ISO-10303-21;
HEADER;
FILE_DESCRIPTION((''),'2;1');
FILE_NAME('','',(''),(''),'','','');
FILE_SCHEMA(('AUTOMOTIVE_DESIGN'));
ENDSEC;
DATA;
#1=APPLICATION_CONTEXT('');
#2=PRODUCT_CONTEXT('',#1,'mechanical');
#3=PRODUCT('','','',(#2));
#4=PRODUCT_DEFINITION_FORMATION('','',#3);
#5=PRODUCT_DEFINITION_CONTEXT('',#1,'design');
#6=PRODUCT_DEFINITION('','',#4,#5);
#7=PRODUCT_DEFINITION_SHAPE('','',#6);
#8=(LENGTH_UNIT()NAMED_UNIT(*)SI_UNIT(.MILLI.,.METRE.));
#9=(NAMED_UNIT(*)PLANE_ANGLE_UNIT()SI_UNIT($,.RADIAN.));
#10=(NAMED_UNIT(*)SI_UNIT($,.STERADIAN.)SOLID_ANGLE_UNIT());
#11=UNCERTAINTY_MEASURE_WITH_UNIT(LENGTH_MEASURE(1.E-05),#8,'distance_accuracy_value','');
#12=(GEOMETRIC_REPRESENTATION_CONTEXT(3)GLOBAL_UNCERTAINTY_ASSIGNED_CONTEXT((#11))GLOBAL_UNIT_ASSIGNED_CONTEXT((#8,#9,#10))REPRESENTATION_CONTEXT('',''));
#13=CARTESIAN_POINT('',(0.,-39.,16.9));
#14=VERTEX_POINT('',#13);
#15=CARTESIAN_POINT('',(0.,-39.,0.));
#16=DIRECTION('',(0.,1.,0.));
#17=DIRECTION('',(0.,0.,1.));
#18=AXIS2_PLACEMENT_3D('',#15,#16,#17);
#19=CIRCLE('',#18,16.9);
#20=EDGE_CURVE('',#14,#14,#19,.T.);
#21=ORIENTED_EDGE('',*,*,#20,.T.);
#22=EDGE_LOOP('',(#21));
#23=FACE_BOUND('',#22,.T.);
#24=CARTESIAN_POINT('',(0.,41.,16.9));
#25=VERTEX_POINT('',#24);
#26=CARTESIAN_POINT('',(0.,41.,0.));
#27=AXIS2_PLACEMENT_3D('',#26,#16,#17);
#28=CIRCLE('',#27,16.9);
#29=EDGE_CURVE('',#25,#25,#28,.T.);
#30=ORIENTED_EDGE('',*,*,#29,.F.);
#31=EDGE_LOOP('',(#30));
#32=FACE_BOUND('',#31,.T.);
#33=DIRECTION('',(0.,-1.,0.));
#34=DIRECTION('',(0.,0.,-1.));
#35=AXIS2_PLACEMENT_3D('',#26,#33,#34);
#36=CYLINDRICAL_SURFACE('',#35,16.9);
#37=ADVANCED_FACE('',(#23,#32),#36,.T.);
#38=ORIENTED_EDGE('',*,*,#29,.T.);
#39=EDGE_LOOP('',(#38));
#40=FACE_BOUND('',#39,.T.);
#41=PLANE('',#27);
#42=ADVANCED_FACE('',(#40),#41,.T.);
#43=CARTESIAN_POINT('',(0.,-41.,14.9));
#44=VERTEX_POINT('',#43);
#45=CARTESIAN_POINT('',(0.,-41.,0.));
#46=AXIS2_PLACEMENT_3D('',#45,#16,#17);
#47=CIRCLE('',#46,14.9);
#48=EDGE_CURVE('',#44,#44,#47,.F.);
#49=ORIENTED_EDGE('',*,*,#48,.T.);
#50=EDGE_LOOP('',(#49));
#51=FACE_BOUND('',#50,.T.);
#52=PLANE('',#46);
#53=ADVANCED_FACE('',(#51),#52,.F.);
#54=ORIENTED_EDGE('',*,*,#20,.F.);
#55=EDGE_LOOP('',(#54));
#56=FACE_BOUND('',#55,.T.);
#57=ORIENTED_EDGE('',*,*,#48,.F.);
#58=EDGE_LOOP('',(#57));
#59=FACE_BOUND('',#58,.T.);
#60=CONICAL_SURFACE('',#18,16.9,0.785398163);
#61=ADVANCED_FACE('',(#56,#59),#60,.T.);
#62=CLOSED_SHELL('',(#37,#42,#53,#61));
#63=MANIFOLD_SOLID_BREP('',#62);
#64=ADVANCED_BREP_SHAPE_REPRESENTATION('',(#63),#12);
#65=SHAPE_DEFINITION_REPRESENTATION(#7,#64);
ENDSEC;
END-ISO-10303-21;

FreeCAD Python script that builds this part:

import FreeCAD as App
import Part
import Sketcher


def edges_at(feature, points):
    """Names of the edges that pass closest to the given points."""
    edges = feature.Shape.Edges
    near = lambda p: min(range(len(edges)), key=lambda i: edges[i].distToShape(Part.Vertex(*p))[0])
    return sorted({f"Edge{near(p) + 1}" for p in points})

doc = App.newDocument("Part")
body = doc.addObject("PartDesign::Body", "Body")

sketch1 = body.newObject("Sketcher::SketchObject", "Sketch")
sketch1.AttachmentSupport = (doc.getObject("XZ_Plane"), [""])
sketch1.MapMode = "FlatFace"
sketch1.addGeometry(Part.Circle(App.Vector(0, 0, 0), App.Vector(0, 0, 1), 17), False)
sketch1.addConstraint(Sketcher.Constraint("Coincident", 0, 3, -1, 1))
sketch1.addConstraint(Sketcher.Constraint("Diameter", 0, 33.8))
pad1 = body.newObject("PartDesign::Pad", "Pad")
pad1.Profile = sketch1
pad1.Length = 82
pad1.Midplane = True
doc.recompute()

chamfer = body.newObject("PartDesign::Chamfer", "Chamfer")
chamfer.Base = (pad1, edges_at(pad1, [(0, -41, -16.9)]))
chamfer.Size = 2

doc.recompute()
